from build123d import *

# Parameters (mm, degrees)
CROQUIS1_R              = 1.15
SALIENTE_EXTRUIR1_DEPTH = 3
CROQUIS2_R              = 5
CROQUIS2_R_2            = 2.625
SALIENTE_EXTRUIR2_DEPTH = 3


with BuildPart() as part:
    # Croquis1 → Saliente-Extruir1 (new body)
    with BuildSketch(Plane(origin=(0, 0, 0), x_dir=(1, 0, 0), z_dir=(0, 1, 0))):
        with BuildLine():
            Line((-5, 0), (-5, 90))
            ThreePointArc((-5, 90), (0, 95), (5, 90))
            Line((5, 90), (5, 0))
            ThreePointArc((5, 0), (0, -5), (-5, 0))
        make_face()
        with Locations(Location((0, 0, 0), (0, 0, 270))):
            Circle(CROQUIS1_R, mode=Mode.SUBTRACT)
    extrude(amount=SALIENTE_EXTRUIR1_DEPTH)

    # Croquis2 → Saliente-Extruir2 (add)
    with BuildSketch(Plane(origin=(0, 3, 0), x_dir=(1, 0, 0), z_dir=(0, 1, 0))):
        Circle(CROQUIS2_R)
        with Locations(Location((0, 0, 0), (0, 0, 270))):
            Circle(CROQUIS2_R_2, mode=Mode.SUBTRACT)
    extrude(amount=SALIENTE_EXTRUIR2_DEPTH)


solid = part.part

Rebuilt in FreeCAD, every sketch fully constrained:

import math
import FreeCAD as App
import Part
import Sketcher
Q = App.Units.Quantity

doc = App.newDocument("Part")
params = doc.addObject("Spreadsheet::Sheet", "Params")
for row, (alias, value) in enumerate([
    ("sketch1_radius", "5 mm"),
    ("sketch1_diameter", "2.3 mm"),
    ("sketch1_height", "90 mm"),
    ("pad1_length", "3 mm"),
    ("sketch2_diameter", "10 mm"),
    ("sketch2_diameter2", "5.25 mm"),
    ("pad2_length", "3 mm"),
], start=1):
    params.set(f"A{row}", alias)
    params.set(f"B{row}", "=" + value)
    params.setAlias(f"B{row}", alias)

body = doc.addObject("PartDesign::Body", "Body")

sketch1 = doc.addObject("Sketcher::SketchObject", "Sketch")
body.addObject(sketch1)
sketch1.AttachmentSupport = (doc.XZ_Plane, [""])
sketch1.MapMode = "FlatFace"
sketch1.addGeometry([
    Part.LineSegment(App.Vector(-5, -90, 0), App.Vector(-5, 0, 0)),
    Part.ArcOfCircle(Part.Circle(App.Vector(0, 0, 0), App.Vector(0, 0, 1), 5), math.radians(0), math.radians(180)),
    Part.LineSegment(App.Vector(5, 0, 0), App.Vector(5, -90, 0)),
    Part.ArcOfCircle(Part.Circle(App.Vector(0, -90, 0), App.Vector(0, 0, 1), 5), math.radians(180), math.radians(360)),
    Part.Circle(App.Vector(0, 0, 0), App.Vector(0, 0, 1), 1.1),
], False)
sketch1.addConstraint([
    Sketcher.Constraint("Tangent", 0, 2, 1, 2),
    Sketcher.Constraint("Tangent", 1, 1, 2, 1),
    Sketcher.Constraint("Tangent", 2, 2, 3, 2),
    Sketcher.Constraint("Tangent", 3, 1, 0, 1),
    Sketcher.Constraint("Vertical", 0),
    Sketcher.Constraint("Vertical", 2),
    Sketcher.Constraint("Coincident", 1, 3, -1, 1),
    Sketcher.Constraint("Coincident", 4, 3, -1, 1),
    Sketcher.Constraint("Radius", 1, Q("5 mm")),
    Sketcher.Constraint("Diameter", 4, Q("2.3 mm")),
    Sketcher.Constraint("DistanceY", 0, 1, 0, 2, Q("90 mm")),
])
sketch1.setExpression("Constraints[8]", "Params.sketch1_radius")
sketch1.setExpression("Constraints[9]", "Params.sketch1_diameter")
sketch1.setExpression("Constraints[10]", "Params.sketch1_height")
pad1 = doc.addObject("PartDesign::Pad", "Pad")
body.addObject(pad1)
pad1.Profile = sketch1
pad1.setExpression("Length", "Params.pad1_length")
pad1.Reversed = True

sketch2 = doc.addObject("Sketcher::SketchObject", "Sketch001")
body.addObject(sketch2)
sketch2.AttachmentSupport = (doc.XZ_Plane, [""])
sketch2.MapMode = "FlatFace"
sketch2.AttachmentOffset = App.Placement(App.Vector(0, 0, -3), App.Rotation())
sketch2.addGeometry([
    Part.Circle(App.Vector(0, 0, 0), App.Vector(0, 0, 1), 5),
    Part.Circle(App.Vector(0, 0, 0), App.Vector(0, 0, 1), 2.6),
], False)
sketch2.addConstraint([
    Sketcher.Constraint("Coincident", 0, 3, -1, 1),
    Sketcher.Constraint("Coincident", 1, 3, -1, 1),
    Sketcher.Constraint("Diameter", 0, Q("10 mm")),
    Sketcher.Constraint("Diameter", 1, Q("5.25 mm")),
])
sketch2.setExpression("Constraints[2]", "Params.sketch2_diameter")
sketch2.setExpression("Constraints[3]", "Params.sketch2_diameter2")
pad2 = doc.addObject("PartDesign::Pad", "Pad001")
body.addObject(pad2)
pad2.Profile = sketch2
pad2.setExpression("Length", "Params.pad2_length")
pad2.Reversed = True

doc.recompute()
